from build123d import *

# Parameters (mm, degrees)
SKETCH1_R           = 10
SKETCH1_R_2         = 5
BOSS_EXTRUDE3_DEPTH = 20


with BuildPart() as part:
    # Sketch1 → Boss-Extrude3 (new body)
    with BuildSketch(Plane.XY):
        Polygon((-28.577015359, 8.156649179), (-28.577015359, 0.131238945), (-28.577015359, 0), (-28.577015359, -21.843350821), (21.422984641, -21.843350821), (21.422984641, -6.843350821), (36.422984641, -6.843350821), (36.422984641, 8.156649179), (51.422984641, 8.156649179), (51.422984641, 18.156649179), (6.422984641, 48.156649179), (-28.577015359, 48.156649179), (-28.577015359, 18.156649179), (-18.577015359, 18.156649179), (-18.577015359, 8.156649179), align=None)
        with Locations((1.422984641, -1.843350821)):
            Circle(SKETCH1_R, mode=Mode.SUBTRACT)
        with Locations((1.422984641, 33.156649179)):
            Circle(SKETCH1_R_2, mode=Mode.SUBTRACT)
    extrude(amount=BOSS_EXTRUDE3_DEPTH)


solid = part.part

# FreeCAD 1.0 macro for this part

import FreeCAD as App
import Part
import Sketcher
from FreeCAD import Vector


def add_polygon(sketch, points):
    """Adds a closed chain of lines whose ends are joined by coincident constraints."""
    first, n = sketch.GeometryCount, len(points)
    for a, b in zip(points, points[1:] + points[:1]):
        sketch.addGeometry(Part.LineSegment(App.Vector(*a, 0), App.Vector(*b, 0)), False)
    for i in range(n):
        sketch.addConstraint(Sketcher.Constraint("Coincident", first + i, 2, first + (i + 1) % n, 1))

doc = App.newDocument("Part")
body = doc.addObject("PartDesign::Body", "Body")

sketch1 = body.newObject("Sketcher::SketchObject", "Sketch")
sketch1.AttachmentSupport = (doc.getObject("XY_Plane"), [""])
sketch1.MapMode = "FlatFace"
add_polygon(sketch1, [(-28.577015, 8.156649), (-28.577015, -21.843351), (21.422985, -21.843351), (21.422985, -6.843351), (36.422985, -6.843351), (36.422985, 8.156649), (51.422985, 8.156649), (51.422985, 18.156649), (6.422985, 48.156649), (-28.577015, 48.156649), (-28.577015, 18.156649), (-18.577015, 18.156649), (-18.577015, 8.156649)])
sketch1.addGeometry(Part.Circle(Vector(1.422985, -1.843351, 0), Vector(0, 0, 1), 10), False)
sketch1.addGeometry(Part.Circle(Vector(1.422985, 33.156649, 0), Vector(0, 0, 1), 5), False)
sketch1.addConstraint([
    Sketcher.Constraint("Vertical", 0),
    Sketcher.Constraint("Horizontal", 1),
    Sketcher.Constraint("Vertical", 2),
    Sketcher.Constraint("Horizontal", 3),
    Sketcher.Constraint("Vertical", 4),
    Sketcher.Constraint("Horizontal", 5),
    Sketcher.Constraint("Vertical", 6),
    Sketcher.Constraint("Horizontal", 8),
    Sketcher.Constraint("Vertical", 9),
    Sketcher.Constraint("Horizontal", 10),
    Sketcher.Constraint("Vertical", 11),
    Sketcher.Constraint("Horizontal", 12),
    Sketcher.Constraint("Horizontal", 6, 2, 9, 2),
    Sketcher.Constraint("Horizontal", 5, 2, 11, 2),
    Sketcher.Constraint("Vertical", 13, 3, 14, 3),
    Sketcher.Constraint("Vertical", 0, 2, 8, 2),
    Sketcher.Constraint("Equal", 3, 5),
    Sketcher.Constraint("Equal", 5, 2),
    Sketcher.Constraint("Equal", 2, 4),
    Sketcher.Constraint("Equal", 12, 6),
    Sketcher.Constraint("Equal", 0, 9),
    Sketcher.Constraint("Diameter", 13, 20.0),
    Sketcher.Constraint("Diameter", 14, 10.0),
    Sketcher.Constraint("DistanceX", 1, 1, 1, 2, 50.0),
    Sketcher.Constraint("DistanceX", 3, 1, 3, 2, 15.0),
    Sketcher.Constraint("DistanceX", 8, 2, 8, 1, 35.0),
    Sketcher.Constraint("DistanceX", 10, 1, 10, 2, 10.0),
    Sketcher.Constraint("DistanceY", 13, 3, 14, 3, 35.0),
    Sketcher.Constraint("DistanceX", 0, 2, 13, 3, 30.0),
    Sketcher.Constraint("DistanceY", 0, 2, 13, 3, 20.0),
    Sketcher.Constraint("DistanceY", 13, 3, -1, 1, 1.843351),
    Sketcher.Constraint("DistanceX", -1, 1, 13, 3, 1.422985),
])
pad1 = body.newObject("PartDesign::Pad", "Pad")
pad1.Profile = sketch1
pad1.Length = 20

doc.recompute()
